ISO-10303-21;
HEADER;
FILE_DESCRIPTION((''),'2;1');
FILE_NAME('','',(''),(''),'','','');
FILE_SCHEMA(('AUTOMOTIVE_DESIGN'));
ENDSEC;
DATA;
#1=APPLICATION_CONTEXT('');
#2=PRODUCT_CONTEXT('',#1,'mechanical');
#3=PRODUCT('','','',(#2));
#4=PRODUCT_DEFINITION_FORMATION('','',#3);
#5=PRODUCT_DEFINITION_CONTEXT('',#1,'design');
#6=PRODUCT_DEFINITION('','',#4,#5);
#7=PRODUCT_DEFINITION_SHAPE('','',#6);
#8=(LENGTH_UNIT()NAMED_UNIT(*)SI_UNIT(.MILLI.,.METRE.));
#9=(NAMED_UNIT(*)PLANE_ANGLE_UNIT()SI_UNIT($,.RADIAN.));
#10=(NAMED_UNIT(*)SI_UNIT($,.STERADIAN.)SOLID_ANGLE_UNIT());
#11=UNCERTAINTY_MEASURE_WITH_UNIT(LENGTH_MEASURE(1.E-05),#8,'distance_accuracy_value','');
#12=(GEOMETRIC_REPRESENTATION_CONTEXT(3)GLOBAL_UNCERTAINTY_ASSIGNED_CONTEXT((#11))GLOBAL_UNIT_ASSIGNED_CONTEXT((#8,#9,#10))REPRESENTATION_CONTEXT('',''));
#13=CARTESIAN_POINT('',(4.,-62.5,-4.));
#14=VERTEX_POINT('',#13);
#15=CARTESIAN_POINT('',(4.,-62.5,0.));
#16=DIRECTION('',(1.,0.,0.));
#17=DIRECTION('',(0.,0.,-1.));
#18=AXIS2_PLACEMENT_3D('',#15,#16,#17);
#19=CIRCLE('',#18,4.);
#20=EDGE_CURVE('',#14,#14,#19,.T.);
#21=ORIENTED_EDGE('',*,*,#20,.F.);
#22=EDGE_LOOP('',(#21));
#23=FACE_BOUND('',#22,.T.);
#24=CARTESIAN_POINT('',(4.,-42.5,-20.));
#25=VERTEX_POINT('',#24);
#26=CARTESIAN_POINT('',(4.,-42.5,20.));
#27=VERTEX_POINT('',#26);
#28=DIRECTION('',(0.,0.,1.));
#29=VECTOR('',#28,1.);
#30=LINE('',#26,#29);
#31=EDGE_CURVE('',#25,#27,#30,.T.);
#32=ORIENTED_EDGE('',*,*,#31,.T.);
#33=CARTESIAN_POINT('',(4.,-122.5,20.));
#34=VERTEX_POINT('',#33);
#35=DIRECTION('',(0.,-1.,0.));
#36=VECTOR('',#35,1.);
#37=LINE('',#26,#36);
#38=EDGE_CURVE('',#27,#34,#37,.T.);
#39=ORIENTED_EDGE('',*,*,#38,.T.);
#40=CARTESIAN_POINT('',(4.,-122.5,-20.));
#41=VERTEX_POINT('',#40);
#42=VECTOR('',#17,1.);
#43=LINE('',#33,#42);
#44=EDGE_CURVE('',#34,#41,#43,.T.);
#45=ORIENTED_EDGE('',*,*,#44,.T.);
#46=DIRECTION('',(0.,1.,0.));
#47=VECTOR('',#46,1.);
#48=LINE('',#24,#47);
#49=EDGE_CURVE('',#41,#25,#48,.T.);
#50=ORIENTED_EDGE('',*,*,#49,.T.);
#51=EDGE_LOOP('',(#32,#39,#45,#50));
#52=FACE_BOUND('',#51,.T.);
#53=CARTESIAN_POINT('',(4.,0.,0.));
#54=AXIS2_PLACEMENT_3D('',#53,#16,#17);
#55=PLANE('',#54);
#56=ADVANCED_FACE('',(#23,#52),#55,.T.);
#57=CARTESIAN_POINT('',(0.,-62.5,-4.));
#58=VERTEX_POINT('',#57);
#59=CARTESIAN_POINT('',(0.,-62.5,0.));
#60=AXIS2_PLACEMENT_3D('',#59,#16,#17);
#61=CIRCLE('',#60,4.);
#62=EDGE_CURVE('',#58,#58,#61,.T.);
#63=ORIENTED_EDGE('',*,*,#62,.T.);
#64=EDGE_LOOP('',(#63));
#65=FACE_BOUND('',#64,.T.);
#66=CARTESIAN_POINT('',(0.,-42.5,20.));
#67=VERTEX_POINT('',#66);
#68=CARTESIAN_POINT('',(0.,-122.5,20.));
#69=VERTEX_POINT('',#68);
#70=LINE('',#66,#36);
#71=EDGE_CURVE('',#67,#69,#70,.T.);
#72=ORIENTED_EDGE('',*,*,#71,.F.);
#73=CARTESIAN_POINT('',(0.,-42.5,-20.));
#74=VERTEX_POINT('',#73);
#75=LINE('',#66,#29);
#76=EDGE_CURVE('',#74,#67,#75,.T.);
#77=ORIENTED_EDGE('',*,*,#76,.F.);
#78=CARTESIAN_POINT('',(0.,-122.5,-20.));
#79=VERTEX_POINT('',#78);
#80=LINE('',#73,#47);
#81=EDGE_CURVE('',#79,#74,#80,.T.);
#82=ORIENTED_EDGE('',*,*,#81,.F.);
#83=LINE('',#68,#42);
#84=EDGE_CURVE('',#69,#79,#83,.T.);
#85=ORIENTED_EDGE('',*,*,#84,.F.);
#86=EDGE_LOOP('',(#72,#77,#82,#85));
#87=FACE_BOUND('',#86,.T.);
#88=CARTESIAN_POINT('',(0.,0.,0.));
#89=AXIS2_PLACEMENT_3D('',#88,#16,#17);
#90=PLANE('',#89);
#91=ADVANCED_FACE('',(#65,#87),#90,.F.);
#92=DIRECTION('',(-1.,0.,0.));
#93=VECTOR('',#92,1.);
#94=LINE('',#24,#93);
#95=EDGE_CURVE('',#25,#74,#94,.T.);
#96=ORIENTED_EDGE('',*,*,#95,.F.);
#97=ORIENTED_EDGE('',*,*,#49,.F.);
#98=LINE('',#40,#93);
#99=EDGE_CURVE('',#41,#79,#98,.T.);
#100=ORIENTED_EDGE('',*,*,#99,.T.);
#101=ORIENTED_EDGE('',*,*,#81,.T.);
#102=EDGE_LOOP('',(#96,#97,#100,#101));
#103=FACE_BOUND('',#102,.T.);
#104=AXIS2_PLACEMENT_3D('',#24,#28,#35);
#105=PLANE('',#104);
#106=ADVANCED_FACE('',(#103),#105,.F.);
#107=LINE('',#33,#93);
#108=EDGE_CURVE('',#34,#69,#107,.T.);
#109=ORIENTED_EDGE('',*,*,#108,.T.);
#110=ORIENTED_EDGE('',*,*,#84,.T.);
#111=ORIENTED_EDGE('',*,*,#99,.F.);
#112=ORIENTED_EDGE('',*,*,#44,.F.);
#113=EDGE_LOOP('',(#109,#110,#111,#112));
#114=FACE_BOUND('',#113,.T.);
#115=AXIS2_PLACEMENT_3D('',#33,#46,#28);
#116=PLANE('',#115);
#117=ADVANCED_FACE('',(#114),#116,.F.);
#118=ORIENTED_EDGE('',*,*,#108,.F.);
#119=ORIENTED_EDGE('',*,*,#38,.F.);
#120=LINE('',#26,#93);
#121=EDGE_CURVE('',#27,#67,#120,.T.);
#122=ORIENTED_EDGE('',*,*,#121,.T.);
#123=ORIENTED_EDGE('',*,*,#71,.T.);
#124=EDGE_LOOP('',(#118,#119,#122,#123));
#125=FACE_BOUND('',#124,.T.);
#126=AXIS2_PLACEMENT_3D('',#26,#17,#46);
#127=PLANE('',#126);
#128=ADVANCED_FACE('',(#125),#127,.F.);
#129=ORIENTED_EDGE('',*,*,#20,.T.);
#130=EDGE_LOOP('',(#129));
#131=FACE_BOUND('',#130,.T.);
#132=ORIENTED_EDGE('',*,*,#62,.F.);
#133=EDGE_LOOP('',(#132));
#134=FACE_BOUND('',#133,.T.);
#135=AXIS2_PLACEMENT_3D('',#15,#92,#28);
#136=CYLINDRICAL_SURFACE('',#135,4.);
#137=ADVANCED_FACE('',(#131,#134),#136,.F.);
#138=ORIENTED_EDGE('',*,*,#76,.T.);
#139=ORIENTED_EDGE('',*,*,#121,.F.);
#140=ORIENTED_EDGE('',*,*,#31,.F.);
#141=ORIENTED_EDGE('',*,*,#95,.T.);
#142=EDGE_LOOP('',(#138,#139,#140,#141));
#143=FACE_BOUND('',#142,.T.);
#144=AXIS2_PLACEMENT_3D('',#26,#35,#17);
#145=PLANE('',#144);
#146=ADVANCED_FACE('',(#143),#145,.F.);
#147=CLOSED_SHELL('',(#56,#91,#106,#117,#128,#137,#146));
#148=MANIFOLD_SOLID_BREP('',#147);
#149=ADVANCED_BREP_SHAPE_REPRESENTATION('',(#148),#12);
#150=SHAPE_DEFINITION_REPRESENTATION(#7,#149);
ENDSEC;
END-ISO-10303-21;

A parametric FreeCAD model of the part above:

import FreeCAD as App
import Part
import Sketcher
from FreeCAD import Vector
Q = App.Units.Quantity

doc = App.newDocument("Part")
body = doc.addObject("PartDesign::Body", "Body")

sketch1 = body.newObject("Sketcher::SketchObject", "Sketch")
sketch1.AttachmentSupport = (doc.getObject("YZ_Plane"), [""])
sketch1.MapMode = "FlatFace"
sketch1.addGeometry(Part.LineSegment(Vector(-42.5, 20, 0), Vector(-122.5, 20, 0)), False)
sketch1.addGeometry(Part.LineSegment(Vector(-122.5, 20, 0), Vector(-122.5, -20, 0)), False)
sketch1.addGeometry(Part.LineSegment(Vector(-122.5, -20, 0), Vector(-42.5, -20, 0)), False)
sketch1.addGeometry(Part.LineSegment(Vector(-42.5, -20, 0), Vector(-42.5, 20, 0)), False)
sketch1.addGeometry(Part.Circle(Vector(-62.5, 0, 0), Vector(0, 0, 1), 4), False)
sketch1.addConstraint(Sketcher.Constraint("Coincident", 0, 2, 1, 1))
sketch1.addConstraint(Sketcher.Constraint("Coincident", 1, 2, 2, 1))
sketch1.addConstraint(Sketcher.Constraint("Coincident", 2, 2, 3, 1))
sketch1.addConstraint(Sketcher.Constraint("Coincident", 3, 2, 0, 1))
sketch1.addConstraint(Sketcher.Constraint("Horizontal", 0))
sketch1.addConstraint(Sketcher.Constraint("Vertical", 1))
sketch1.addConstraint(Sketcher.Constraint("Horizontal", 2))
sketch1.addConstraint(Sketcher.Constraint("Vertical", 3))
sketch1.addConstraint(Sketcher.Constraint("PointOnObject", 4, 3, -1))
sketch1.addConstraint(Sketcher.Constraint("Diameter", 4, Q("8 mm")))
sketch1.addConstraint(Sketcher.Constraint("DistanceX", 0, 2, 0, 1, Q("80 mm")))
sketch1.addConstraint(Sketcher.Constraint("DistanceY", 1, 2, 1, 1, Q("40 mm")))
sketch1.addConstraint(Sketcher.Constraint("DistanceY", -1, 1, 0, 2, Q("20 mm")))
sketch1.addConstraint(Sketcher.Constraint("DistanceX", 0, 2, 4, 3, Q("60 mm")))
sketch1.addConstraint(Sketcher.Constraint("DistanceX", 4, 3, -1, 1, Q("62.5 mm")))
pad1 = body.newObject("PartDesign::Pad", "Pad")
pad1.Profile = sketch1
pad1.Length = 4

doc.recompute()
